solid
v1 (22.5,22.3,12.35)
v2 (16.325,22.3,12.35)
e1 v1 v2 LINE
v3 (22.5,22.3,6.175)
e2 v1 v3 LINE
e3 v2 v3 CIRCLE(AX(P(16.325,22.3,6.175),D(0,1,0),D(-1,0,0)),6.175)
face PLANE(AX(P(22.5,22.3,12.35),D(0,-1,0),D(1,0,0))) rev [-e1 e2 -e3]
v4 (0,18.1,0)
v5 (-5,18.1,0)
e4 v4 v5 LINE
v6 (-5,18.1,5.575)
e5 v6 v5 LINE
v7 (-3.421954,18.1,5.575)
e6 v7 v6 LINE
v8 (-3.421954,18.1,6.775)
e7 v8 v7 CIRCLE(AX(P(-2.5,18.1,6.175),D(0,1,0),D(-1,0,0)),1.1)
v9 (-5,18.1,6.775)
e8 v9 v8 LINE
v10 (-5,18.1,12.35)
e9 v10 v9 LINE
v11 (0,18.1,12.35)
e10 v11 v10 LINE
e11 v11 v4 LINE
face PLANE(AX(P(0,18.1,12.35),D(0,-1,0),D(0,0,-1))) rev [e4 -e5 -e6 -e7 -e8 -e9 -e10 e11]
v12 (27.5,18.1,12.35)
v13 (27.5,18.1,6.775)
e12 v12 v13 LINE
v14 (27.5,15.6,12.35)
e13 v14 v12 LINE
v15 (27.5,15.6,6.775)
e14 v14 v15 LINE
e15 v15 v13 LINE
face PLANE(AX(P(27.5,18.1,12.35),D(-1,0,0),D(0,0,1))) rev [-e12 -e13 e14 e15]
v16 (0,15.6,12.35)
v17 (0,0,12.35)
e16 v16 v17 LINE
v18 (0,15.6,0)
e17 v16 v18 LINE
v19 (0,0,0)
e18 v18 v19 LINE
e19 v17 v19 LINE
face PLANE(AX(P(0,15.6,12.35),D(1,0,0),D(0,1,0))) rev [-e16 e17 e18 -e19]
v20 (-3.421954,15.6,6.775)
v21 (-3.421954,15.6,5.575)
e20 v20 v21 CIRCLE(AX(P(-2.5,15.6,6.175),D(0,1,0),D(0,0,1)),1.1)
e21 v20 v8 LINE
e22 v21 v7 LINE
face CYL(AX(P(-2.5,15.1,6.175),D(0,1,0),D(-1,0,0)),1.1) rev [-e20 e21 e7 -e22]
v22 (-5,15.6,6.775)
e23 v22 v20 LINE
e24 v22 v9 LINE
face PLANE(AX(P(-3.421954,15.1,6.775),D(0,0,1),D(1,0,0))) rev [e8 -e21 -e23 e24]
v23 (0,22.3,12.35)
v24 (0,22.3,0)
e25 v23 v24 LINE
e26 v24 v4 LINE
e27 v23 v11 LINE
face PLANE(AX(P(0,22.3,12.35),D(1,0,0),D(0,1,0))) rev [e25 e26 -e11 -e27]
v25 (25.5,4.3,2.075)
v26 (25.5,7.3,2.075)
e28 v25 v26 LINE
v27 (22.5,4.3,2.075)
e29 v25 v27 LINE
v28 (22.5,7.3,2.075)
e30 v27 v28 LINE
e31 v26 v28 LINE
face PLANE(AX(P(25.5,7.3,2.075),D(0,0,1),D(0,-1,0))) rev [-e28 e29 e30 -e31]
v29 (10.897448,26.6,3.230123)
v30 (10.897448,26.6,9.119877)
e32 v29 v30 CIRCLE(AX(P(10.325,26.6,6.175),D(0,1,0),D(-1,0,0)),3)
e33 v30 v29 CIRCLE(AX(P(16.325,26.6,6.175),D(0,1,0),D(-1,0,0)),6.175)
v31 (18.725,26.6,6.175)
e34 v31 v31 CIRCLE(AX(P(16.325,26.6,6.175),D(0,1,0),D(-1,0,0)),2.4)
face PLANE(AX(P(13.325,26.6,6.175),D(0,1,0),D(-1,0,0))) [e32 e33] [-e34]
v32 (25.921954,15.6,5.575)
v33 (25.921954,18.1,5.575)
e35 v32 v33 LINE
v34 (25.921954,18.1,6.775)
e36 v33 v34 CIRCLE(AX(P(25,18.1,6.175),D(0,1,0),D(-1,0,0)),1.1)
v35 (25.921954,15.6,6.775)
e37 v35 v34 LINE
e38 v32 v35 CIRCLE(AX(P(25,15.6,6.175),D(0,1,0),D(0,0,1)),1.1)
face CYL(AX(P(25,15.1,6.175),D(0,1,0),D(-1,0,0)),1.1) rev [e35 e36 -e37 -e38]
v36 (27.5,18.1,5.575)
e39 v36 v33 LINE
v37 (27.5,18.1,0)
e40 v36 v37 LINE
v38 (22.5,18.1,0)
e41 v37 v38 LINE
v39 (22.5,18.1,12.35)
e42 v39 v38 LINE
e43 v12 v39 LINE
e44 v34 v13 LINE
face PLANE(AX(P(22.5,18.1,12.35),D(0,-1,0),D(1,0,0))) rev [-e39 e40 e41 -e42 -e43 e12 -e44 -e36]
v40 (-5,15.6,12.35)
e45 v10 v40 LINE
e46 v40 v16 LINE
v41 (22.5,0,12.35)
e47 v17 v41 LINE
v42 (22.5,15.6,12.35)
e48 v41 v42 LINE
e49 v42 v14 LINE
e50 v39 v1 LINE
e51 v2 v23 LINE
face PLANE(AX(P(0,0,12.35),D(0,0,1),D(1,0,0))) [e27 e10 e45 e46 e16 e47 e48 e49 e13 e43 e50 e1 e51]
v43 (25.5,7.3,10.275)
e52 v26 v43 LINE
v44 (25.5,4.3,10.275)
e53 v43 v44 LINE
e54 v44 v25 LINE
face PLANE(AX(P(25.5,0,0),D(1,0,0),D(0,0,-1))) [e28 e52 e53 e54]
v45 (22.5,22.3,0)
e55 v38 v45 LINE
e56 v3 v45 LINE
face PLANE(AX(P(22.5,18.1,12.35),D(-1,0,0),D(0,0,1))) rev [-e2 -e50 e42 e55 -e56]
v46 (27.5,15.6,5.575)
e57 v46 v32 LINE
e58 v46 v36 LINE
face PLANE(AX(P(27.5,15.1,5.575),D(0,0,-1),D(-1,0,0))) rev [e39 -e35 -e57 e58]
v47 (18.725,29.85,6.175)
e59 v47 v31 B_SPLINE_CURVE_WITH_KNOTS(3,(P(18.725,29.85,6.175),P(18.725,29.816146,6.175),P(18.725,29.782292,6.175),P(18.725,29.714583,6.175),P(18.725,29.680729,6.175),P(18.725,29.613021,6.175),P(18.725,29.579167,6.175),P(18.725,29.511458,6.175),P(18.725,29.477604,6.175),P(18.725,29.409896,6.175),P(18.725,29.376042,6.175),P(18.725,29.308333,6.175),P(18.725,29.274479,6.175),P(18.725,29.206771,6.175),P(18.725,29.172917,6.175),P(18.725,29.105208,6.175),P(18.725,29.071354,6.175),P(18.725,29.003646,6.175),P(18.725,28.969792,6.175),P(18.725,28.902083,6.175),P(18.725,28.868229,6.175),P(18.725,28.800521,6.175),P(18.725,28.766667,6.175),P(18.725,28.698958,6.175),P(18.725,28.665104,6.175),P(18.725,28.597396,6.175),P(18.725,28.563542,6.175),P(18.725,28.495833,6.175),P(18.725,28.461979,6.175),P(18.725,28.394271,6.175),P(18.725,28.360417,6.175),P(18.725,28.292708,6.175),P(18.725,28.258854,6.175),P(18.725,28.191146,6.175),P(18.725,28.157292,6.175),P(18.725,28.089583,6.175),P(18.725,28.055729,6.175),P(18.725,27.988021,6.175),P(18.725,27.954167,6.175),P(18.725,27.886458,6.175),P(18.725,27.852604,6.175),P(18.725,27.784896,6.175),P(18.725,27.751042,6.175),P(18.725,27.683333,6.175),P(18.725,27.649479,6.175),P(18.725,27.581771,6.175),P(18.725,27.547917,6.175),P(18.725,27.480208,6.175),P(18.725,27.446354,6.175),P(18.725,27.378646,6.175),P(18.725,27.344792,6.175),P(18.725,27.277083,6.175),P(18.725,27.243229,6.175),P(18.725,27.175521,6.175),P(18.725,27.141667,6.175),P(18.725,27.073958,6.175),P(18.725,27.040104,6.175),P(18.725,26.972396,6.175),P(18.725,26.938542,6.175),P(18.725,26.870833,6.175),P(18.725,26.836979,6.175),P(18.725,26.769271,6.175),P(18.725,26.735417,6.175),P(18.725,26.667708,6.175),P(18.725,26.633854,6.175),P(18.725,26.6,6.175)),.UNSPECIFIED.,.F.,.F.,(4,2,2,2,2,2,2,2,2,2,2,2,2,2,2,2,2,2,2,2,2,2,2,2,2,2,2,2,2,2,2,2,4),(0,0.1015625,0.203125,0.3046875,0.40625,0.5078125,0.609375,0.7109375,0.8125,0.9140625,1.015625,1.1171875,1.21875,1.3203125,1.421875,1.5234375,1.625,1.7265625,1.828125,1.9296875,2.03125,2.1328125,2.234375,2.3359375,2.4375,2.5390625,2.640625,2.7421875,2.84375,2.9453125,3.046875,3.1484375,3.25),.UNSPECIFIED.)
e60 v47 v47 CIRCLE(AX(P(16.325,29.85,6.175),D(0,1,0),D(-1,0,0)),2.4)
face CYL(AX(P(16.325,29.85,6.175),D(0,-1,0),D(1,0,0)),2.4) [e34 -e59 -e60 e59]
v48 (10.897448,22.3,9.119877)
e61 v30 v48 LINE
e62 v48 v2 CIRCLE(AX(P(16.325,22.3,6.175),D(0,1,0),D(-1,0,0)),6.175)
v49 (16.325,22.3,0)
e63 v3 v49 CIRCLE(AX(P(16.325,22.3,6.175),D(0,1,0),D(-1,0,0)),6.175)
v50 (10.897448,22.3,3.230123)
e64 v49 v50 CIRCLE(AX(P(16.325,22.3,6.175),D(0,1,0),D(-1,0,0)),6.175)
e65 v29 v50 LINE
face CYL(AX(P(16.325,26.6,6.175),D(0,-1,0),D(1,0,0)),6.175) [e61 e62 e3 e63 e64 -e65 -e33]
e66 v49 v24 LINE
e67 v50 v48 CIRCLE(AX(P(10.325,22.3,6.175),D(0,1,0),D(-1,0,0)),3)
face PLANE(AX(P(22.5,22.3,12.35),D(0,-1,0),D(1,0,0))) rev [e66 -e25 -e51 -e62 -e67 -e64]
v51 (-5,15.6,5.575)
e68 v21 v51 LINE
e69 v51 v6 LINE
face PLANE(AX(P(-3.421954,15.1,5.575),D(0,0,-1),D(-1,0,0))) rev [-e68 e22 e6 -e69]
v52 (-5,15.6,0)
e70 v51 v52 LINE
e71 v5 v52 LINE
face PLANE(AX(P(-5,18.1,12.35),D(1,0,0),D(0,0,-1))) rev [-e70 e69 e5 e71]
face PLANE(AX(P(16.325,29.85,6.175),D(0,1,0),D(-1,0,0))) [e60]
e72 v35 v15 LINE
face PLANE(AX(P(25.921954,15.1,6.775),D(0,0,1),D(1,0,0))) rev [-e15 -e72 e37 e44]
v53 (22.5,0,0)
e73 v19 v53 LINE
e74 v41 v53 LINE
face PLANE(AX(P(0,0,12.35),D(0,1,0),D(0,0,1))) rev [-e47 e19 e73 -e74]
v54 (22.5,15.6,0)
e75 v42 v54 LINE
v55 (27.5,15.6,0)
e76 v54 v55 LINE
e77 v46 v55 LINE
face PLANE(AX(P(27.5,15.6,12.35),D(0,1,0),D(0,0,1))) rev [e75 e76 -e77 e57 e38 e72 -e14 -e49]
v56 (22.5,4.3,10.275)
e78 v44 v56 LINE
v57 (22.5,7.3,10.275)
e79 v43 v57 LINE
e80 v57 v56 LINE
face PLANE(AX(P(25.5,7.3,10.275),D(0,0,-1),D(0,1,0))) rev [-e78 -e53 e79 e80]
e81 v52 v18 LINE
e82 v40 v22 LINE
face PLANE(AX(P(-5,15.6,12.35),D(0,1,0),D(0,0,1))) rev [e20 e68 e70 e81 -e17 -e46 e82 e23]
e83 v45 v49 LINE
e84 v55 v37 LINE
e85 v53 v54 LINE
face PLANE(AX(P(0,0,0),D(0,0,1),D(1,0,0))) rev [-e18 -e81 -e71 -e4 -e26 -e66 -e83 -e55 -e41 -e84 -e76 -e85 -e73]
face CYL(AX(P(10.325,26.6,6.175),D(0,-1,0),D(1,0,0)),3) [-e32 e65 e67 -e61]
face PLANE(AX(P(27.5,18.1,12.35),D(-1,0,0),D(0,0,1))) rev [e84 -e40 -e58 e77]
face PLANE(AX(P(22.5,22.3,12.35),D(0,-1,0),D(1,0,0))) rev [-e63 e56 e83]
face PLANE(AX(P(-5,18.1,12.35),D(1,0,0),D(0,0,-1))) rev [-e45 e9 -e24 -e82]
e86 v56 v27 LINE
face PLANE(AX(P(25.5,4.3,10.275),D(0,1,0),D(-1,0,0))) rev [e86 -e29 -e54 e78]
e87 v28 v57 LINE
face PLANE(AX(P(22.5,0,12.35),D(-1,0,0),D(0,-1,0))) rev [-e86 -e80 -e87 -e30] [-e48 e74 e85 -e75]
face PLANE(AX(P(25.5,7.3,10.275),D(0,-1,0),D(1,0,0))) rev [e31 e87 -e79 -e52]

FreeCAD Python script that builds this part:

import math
import FreeCAD as App
import Part
import Sketcher

V = App.Vector

doc = App.newDocument("Part")
body = doc.addObject("PartDesign::Body", "Body")

sketch1 = body.newObject("Sketcher::SketchObject", "Sketch")
sketch1.AttachmentSupport = (doc.getObject("XY_Plane"), [""])
sketch1.MapMode = "FlatFace"
sketch1.addGeometry(Part.LineSegment(V(0, 0, 0), V(22.5, 0, 0)), False)
sketch1.addGeometry(Part.LineSegment(V(22.5, 0, 0), V(22.5, 15.6, 0)), False)
sketch1.addGeometry(Part.LineSegment(V(22.5, 15.6, 0), V(27.5, 15.6, 0)), False)
sketch1.addGeometry(Part.LineSegment(V(27.5, 15.6, 0), V(27.5, 18.1, 0)), False)
sketch1.addGeometry(Part.LineSegment(V(27.5, 18.1, 0), V(22.5, 18.1, 0)), False)
sketch1.addGeometry(Part.LineSegment(V(22.5, 18.1, 0), V(22.5, 22.3, 0)), False)
sketch1.addGeometry(Part.LineSegment(V(22.5, 22.3, 0), V(0, 22.3, 0)), False)
sketch1.addGeometry(Part.LineSegment(V(0, 22.3, 0), V(0, 18.1, 0)), False)
sketch1.addGeometry(Part.LineSegment(V(0, 18.1, 0), V(-5, 18.1, 0)), False)
sketch1.addGeometry(Part.LineSegment(V(-5, 18.1, 0), V(-5, 15.6, 0)), False)
sketch1.addGeometry(Part.LineSegment(V(-5, 15.6, 0), V(0, 15.6, 0)), False)
sketch1.addGeometry(Part.LineSegment(V(0, 15.6, 0), V(0, 0, 0)), False)
sketch1.addConstraint(Sketcher.Constraint("Coincident", 0, 2, 1, 1))
sketch1.addConstraint(Sketcher.Constraint("Coincident", 1, 2, 2, 1))
sketch1.addConstraint(Sketcher.Constraint("Coincident", 2, 2, 3, 1))
sketch1.addConstraint(Sketcher.Constraint("Coincident", 3, 2, 4, 1))
sketch1.addConstraint(Sketcher.Constraint("Coincident", 4, 2, 5, 1))
sketch1.addConstraint(Sketcher.Constraint("Coincident", 5, 2, 6, 1))
sketch1.addConstraint(Sketcher.Constraint("Coincident", 6, 2, 7, 1))
sketch1.addConstraint(Sketcher.Constraint("Coincident", 7, 2, 8, 1))
sketch1.addConstraint(Sketcher.Constraint("Coincident", 8, 2, 9, 1))
sketch1.addConstraint(Sketcher.Constraint("Coincident", 9, 2, 10, 1))
sketch1.addConstraint(Sketcher.Constraint("Coincident", 10, 2, 11, 1))
sketch1.addConstraint(Sketcher.Constraint("Coincident", 11, 2, 0, 1))
sketch1.addConstraint(Sketcher.Constraint("Horizontal", 0))
sketch1.addConstraint(Sketcher.Constraint("Vertical", 1))
sketch1.addConstraint(Sketcher.Constraint("Horizontal", 2))
sketch1.addConstraint(Sketcher.Constraint("Vertical", 3))
sketch1.addConstraint(Sketcher.Constraint("Horizontal", 4))
sketch1.addConstraint(Sketcher.Constraint("Vertical", 5))
sketch1.addConstraint(Sketcher.Constraint("Horizontal", 6))
sketch1.addConstraint(Sketcher.Constraint("Vertical", 7))
sketch1.addConstraint(Sketcher.Constraint("Horizontal", 8))
sketch1.addConstraint(Sketcher.Constraint("Vertical", 9))
sketch1.addConstraint(Sketcher.Constraint("Horizontal", 10))
sketch1.addConstraint(Sketcher.Constraint("Vertical", 11))
sketch1.addConstraint(Sketcher.Constraint("Coincident", 11, 2, -1, 1))
sketch1.addConstraint(Sketcher.Constraint("PointOnObject", 6, 2, -2))
sketch1.addConstraint(Sketcher.Constraint("Horizontal", 4, 2, 7, 2))
sketch1.addConstraint(Sketcher.Constraint("Horizontal", 2, 2, 9, 2))
sketch1.addConstraint(Sketcher.Constraint("Vertical", 1, 2, 4, 2))
sketch1.addConstraint(Sketcher.Constraint("Equal", 4, 8))
sketch1.addConstraint(Sketcher.Constraint("DistanceX", 2, 1, 2, 2, 5.0))
sketch1.addConstraint(Sketcher.Constraint("DistanceX", 0, 1, 0, 2, 22.5))
sketch1.addConstraint(Sketcher.Constraint("DistanceY", 1, 1, 1, 2, 15.6))
sketch1.addConstraint(Sketcher.Constraint("DistanceY", 3, 1, 3, 2, 2.5))
sketch1.addConstraint(Sketcher.Constraint("DistanceY", 5, 1, 5, 2, 4.2))
pad1 = body.newObject("PartDesign::Pad", "Pad")
pad1.Profile = sketch1
pad1.Length = 12.35

sketch2 = body.newObject("Sketcher::SketchObject", "Sketch001")
sketch2.AttachmentSupport = (doc.getObject("XZ_Plane"), [""])
sketch2.MapMode = "FlatFace"
sketch2.AttachmentOffset = App.Placement(V(0, 0, -22.3), App.Rotation())
sketch2.addGeometry(Part.ArcOfCircle(Part.Circle(V(16.3, 6.2, 0), V(0, 0, 1), 6.2), math.radians(-152), math.radians(152)), False)
sketch2.addGeometry(Part.ArcOfCircle(Part.Circle(V(10.3, 6.2, 0), V(0, 0, 1), 3), math.radians(79), math.radians(281)), False)
sketch2.addConstraint(Sketcher.Constraint("Coincident", 0, 1, 1, 2))
sketch2.addConstraint(Sketcher.Constraint("Coincident", 1, 1, 0, 2))
sketch2.addConstraint(Sketcher.Constraint("Horizontal", 0, 3, 1, 3))
sketch2.addConstraint(Sketcher.Constraint("Radius", 1, 3.0))
sketch2.addConstraint(Sketcher.Constraint("Radius", 0, 6.175))
sketch2.addConstraint(Sketcher.Constraint("DistanceX", 1, 3, 0, 3, 6.0))
sketch2.addConstraint(Sketcher.Constraint("DistanceX", -1, 1, 0, 3, 16.325))
sketch2.addConstraint(Sketcher.Constraint("DistanceY", -1, 1, 0, 3, 6.175))
pad2 = body.newObject("PartDesign::Pad", "Pad001")
pad2.Profile = sketch2
pad2.Length = 4.3
pad2.Reversed = True

sketch3 = body.newObject("Sketcher::SketchObject", "Sketch002")
sketch3.AttachmentSupport = (doc.getObject("XZ_Plane"), [""])
sketch3.MapMode = "FlatFace"
sketch3.AttachmentOffset = App.Placement(V(0, 0, -26.6), App.Rotation())
sketch3.addGeometry(Part.Circle(V(16.3, 6.2, 0), V(0, 0, 1), 2.4), False)
sketch3.addConstraint(Sketcher.Constraint("Diameter", 0, 4.8))
sketch3.addConstraint(Sketcher.Constraint("DistanceX", -1, 1, 0, 3, 16.325))
sketch3.addConstraint(Sketcher.Constraint("DistanceY", -1, 1, 0, 3, 6.175))
pad3 = body.newObject("PartDesign::Pad", "Pad002")
pad3.Profile = sketch3
pad3.Length = 3.25
pad3.Reversed = True

sketch4 = body.newObject("Sketcher::SketchObject", "Sketch003")
sketch4.AttachmentSupport = (doc.getObject("YZ_Plane"), [""])
sketch4.MapMode = "FlatFace"
sketch4.AttachmentOffset = App.Placement(V(0, 0, 22.5), App.Rotation())
sketch4.addGeometry(Part.LineSegment(V(7.3, 10.3, 0), V(4.3, 10.3, 0)), False)
sketch4.addGeometry(Part.LineSegment(V(4.3, 10.3, 0), V(4.3, 2.1, 0)), False)
sketch4.addGeometry(Part.LineSegment(V(4.3, 2.1, 0), V(7.3, 2.1, 0)), False)
sketch4.addGeometry(Part.LineSegment(V(7.3, 2.1, 0), V(7.3, 10.3, 0)), False)
sketch4.addConstraint(Sketcher.Constraint("Coincident", 0, 2, 1, 1))
sketch4.addConstraint(Sketcher.Constraint("Coincident", 1, 2, 2, 1))
sketch4.addConstraint(Sketcher.Constraint("Coincident", 2, 2, 3, 1))
sketch4.addConstraint(Sketcher.Constraint("Coincident", 3, 2, 0, 1))
sketch4.addConstraint(Sketcher.Constraint("Horizontal", 0))
sketch4.addConstraint(Sketcher.Constraint("Vertical", 1))
sketch4.addConstraint(Sketcher.Constraint("Horizontal", 2))
sketch4.addConstraint(Sketcher.Constraint("Vertical", 3))
sketch4.addConstraint(Sketcher.Constraint("DistanceX", 0, 2, 0, 1, 3.0))
sketch4.addConstraint(Sketcher.Constraint("DistanceY", 1, 2, 1, 1, 8.2))
sketch4.addConstraint(Sketcher.Constraint("DistanceX", -1, 1, 0, 2, 4.3))
sketch4.addConstraint(Sketcher.Constraint("DistanceY", -1, 1, 0, 2, 10.275))
pad4 = body.newObject("PartDesign::Pad", "Pad003")
pad4.Profile = sketch4
pad4.Length = 3

sketch5 = body.newObject("Sketcher::SketchObject", "Sketch004")
sketch5.AttachmentSupport = (doc.getObject("XZ_Plane"), [""])
sketch5.MapMode = "FlatFace"
sketch5.AttachmentOffset = App.Placement(V(0, 0, -18.1), App.Rotation())
sketch5.addGeometry(Part.LineSegment(V(-3.4, 5.6, 0), V(-5, 5.6, 0)), False)
sketch5.addGeometry(Part.LineSegment(V(-5, 5.6, 0), V(-5, 6.8, 0)), False)
sketch5.addGeometry(Part.LineSegment(V(-5, 6.8, 0), V(-3.4, 6.8, 0)), False)
sketch5.addGeometry(Part.ArcOfCircle(Part.Circle(V(-2.5, 6.2, 0), V(0, 0, 1), 1.1), math.radians(-147), math.radians(147)), False)
sketch5.addGeometry(Part.LineSegment(V(25.9, 6.8, 0), V(27.5, 6.8, 0)), False)
sketch5.addGeometry(Part.LineSegment(V(27.5, 6.8, 0), V(27.5, 5.6, 0)), False)
sketch5.addGeometry(Part.LineSegment(V(27.5, 5.6, 0), V(25.9, 5.6, 0)), False)
sketch5.addGeometry(Part.ArcOfCircle(Part.Circle(V(25, 6.2, 0), V(0, 0, 1), 1.1), math.radians(33), math.radians(327)), False)
sketch5.addConstraint(Sketcher.Constraint("Coincident", 0, 2, 1, 1))
sketch5.addConstraint(Sketcher.Constraint("Coincident", 1, 2, 2, 1))
sketch5.addConstraint(Sketcher.Constraint("Coincident", 2, 2, 3, 2))
sketch5.addConstraint(Sketcher.Constraint("Coincident", 3, 1, 0, 1))
sketch5.addConstraint(Sketcher.Constraint("Coincident", 4, 2, 5, 1))
sketch5.addConstraint(Sketcher.Constraint("Coincident", 5, 2, 6, 1))
sketch5.addConstraint(Sketcher.Constraint("Coincident", 6, 2, 7, 2))
sketch5.addConstraint(Sketcher.Constraint("Coincident", 7, 1, 4, 1))
sketch5.addConstraint(Sketcher.Constraint("Horizontal", 0))
sketch5.addConstraint(Sketcher.Constraint("Vertical", 1))
sketch5.addConstraint(Sketcher.Constraint("Horizontal", 2))
sketch5.addConstraint(Sketcher.Constraint("Horizontal", 4))
sketch5.addConstraint(Sketcher.Constraint("Vertical", 5))
sketch5.addConstraint(Sketcher.Constraint("Horizontal", 6))
sketch5.addConstraint(Sketcher.Constraint("Equal", 3, 7))
sketch5.addConstraint(Sketcher.Constraint("Horizontal", 3, 3, 7, 3))
sketch5.addConstraint(Sketcher.Constraint("Horizontal", 2, 2, 4, 2))
sketch5.addConstraint(Sketcher.Constraint("Horizontal", 3, 1, 5, 2))
sketch5.addConstraint(Sketcher.Constraint("Vertical", 2, 2, 3, 1))
sketch5.addConstraint(Sketcher.Constraint("Equal", 2, 4))
sketch5.addConstraint(Sketcher.Constraint("Radius", 3, 1.1))
sketch5.addConstraint(Sketcher.Constraint("DistanceY", 1, 1, 1, 2, 1.2))
sketch5.addConstraint(Sketcher.Constraint("DistanceX", -1, 1, 7, 3, 25.0))
sketch5.addConstraint(Sketcher.Constraint("DistanceX", 0, 2, -1, 1, 5.0))
sketch5.addConstraint(Sketcher.Constraint("DistanceX", 3, 3, -1, 1, 2.5))
sketch5.addConstraint(Sketcher.Constraint("DistanceY", -1, 1, 3, 3, 6.175))
pocket1 = body.newObject("PartDesign::Pocket", "Pocket")
pocket1.Profile = sketch5
pocket1.Length = 3
pocket1.Reversed = True

doc.recompute()
